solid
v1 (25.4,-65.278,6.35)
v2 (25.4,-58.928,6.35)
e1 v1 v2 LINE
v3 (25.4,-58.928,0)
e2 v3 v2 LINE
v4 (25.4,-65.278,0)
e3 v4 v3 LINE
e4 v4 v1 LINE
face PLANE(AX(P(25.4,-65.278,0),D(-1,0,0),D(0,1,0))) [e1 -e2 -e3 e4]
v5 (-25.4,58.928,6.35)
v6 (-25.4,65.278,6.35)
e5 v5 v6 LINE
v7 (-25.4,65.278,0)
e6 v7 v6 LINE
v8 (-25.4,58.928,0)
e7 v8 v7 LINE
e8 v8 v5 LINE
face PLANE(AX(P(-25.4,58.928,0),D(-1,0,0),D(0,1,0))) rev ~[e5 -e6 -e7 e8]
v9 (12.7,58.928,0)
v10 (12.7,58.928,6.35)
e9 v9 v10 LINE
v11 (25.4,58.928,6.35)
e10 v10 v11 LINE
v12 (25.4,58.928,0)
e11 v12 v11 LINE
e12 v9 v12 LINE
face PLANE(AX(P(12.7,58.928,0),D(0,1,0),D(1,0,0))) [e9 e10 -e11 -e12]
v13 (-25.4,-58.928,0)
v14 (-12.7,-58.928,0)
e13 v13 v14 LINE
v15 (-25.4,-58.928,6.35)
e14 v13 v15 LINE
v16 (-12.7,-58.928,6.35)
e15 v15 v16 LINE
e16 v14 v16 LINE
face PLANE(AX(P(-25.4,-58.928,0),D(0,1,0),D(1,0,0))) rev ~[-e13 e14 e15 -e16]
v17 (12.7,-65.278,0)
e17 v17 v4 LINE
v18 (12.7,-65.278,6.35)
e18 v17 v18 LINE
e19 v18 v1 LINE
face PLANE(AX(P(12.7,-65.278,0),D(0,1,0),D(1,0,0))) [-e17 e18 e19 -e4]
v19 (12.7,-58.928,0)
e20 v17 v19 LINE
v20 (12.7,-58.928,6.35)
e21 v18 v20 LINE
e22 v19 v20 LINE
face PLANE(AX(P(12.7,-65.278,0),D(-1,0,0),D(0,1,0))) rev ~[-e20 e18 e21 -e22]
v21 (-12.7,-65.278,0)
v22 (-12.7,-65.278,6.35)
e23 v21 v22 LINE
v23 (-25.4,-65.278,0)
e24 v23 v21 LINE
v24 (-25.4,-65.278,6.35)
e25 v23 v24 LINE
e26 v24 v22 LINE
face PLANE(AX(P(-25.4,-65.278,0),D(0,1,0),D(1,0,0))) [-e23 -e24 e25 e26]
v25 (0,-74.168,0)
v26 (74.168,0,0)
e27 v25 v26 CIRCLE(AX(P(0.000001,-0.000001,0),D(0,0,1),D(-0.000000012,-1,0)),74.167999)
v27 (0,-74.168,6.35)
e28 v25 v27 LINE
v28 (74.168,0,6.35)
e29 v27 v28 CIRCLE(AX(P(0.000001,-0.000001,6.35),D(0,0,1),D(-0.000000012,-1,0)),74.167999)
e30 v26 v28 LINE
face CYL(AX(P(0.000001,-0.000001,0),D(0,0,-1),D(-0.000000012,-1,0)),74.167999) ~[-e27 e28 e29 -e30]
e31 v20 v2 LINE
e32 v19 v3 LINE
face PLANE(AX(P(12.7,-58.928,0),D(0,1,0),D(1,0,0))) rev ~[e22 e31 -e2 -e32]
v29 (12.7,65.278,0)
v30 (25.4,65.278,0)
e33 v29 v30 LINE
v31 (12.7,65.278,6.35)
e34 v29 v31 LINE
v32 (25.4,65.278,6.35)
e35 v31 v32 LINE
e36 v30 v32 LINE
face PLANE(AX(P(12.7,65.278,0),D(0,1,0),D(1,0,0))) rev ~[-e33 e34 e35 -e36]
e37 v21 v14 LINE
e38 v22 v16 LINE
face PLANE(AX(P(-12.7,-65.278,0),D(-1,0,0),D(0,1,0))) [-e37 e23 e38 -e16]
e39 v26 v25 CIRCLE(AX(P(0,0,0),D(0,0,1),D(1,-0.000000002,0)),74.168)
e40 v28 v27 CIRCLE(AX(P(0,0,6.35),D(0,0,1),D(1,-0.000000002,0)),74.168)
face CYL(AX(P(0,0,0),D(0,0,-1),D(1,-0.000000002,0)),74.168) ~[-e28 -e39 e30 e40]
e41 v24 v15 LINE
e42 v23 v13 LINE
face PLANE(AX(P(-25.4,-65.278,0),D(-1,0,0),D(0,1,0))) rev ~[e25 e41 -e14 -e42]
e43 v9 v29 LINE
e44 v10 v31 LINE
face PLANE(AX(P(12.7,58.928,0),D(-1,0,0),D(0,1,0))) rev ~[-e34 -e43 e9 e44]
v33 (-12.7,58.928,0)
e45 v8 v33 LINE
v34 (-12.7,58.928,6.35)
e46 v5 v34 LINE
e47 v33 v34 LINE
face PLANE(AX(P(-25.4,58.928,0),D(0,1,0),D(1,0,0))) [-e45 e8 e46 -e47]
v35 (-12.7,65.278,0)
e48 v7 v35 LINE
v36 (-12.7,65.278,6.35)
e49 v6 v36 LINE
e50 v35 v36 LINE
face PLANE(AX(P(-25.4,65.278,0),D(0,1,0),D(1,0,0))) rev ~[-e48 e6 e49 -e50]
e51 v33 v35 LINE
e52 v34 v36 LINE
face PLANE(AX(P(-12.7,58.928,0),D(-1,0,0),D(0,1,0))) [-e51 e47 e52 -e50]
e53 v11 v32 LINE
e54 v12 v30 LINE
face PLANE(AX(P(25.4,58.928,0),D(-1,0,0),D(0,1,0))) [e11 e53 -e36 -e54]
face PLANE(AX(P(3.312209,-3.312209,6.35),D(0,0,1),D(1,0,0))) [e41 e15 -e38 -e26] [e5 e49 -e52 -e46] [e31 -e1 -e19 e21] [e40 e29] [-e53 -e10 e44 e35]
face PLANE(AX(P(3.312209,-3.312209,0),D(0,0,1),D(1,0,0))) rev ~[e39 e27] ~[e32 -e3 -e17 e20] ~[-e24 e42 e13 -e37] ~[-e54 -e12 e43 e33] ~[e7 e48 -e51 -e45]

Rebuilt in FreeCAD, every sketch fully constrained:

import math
import FreeCAD as App
import Part
import Sketcher

V = App.Vector
Q = App.Units.Quantity

doc = App.newDocument("Part")
params = doc.addObject("Spreadsheet::Sheet", "Params")
for row, (alias, value) in enumerate([
    ("sketch1_radius", "2.92 in"),
    ("sketch1_width", "0.5 in"),
    ("sketch1_height", "0.25 in"),
    ("pad1_length", "0.25 in"),
], start=1):
    params.set(f"A{row}", alias)
    params.set(f"B{row}", "=" + value)
    params.setAlias(f"B{row}", alias)

body = doc.addObject("PartDesign::Body", "Body")

# Sketch on XY plane
sketch1 = body.newObject("Sketcher::SketchObject", "Sketch")
sketch1.AttachmentSupport = (doc.getObject("XY_Plane"), [""])
sketch1.MapMode = "FlatFace"
sketch1.addGeometry(Part.ArcOfCircle(Part.Circle(V(0, 0, 0), V(0, 0, 1), 74), math.radians(-90), math.radians(0)), False)
sketch1.addGeometry(Part.ArcOfCircle(Part.Circle(V(0, 0, 0), V(0, 0, 1), 74), math.radians(0), math.radians(270)), False)
sketch1.addGeometry(Part.LineSegment(V(-13, -65, 0), V(-25, -65, 0)), False)
sketch1.addGeometry(Part.LineSegment(V(-25, -65, 0), V(-25, -59, 0)), False)
sketch1.addGeometry(Part.LineSegment(V(-25, -59, 0), V(-13, -59, 0)), False)
sketch1.addGeometry(Part.LineSegment(V(-13, -59, 0), V(-13, -65, 0)), False)
sketch1.addGeometry(Part.LineSegment(V(25, -65, 0), V(13, -65, 0)), False)
sketch1.addGeometry(Part.LineSegment(V(13, -65, 0), V(13, -59, 0)), False)
sketch1.addGeometry(Part.LineSegment(V(13, -59, 0), V(25, -59, 0)), False)
sketch1.addGeometry(Part.LineSegment(V(25, -59, 0), V(25, -65, 0)), False)
sketch1.addGeometry(Part.LineSegment(V(-13, 59, 0), V(-25, 59, 0)), False)
sketch1.addGeometry(Part.LineSegment(V(-25, 59, 0), V(-25, 65, 0)), False)
sketch1.addGeometry(Part.LineSegment(V(-25, 65, 0), V(-13, 65, 0)), False)
sketch1.addGeometry(Part.LineSegment(V(-13, 65, 0), V(-13, 59, 0)), False)
sketch1.addGeometry(Part.LineSegment(V(25, 59, 0), V(13, 59, 0)), False)
sketch1.addGeometry(Part.LineSegment(V(13, 59, 0), V(13, 65, 0)), False)
sketch1.addGeometry(Part.LineSegment(V(13, 65, 0), V(25, 65, 0)), False)
sketch1.addGeometry(Part.LineSegment(V(25, 65, 0), V(25, 59, 0)), False)
sketch1.addConstraint(Sketcher.Constraint("Tangent", 0, 1, 1, 2))
sketch1.addConstraint(Sketcher.Constraint("Coincident", 1, 1, 0, 2))
sketch1.addConstraint(Sketcher.Constraint("Coincident", 2, 2, 3, 1))
sketch1.addConstraint(Sketcher.Constraint("Coincident", 3, 2, 4, 1))
sketch1.addConstraint(Sketcher.Constraint("Coincident", 4, 2, 5, 1))
sketch1.addConstraint(Sketcher.Constraint("Coincident", 5, 2, 2, 1))
sketch1.addConstraint(Sketcher.Constraint("Coincident", 6, 2, 7, 1))
sketch1.addConstraint(Sketcher.Constraint("Coincident", 7, 2, 8, 1))
sketch1.addConstraint(Sketcher.Constraint("Coincident", 8, 2, 9, 1))
sketch1.addConstraint(Sketcher.Constraint("Coincident", 9, 2, 6, 1))
sketch1.addConstraint(Sketcher.Constraint("Coincident", 10, 2, 11, 1))
sketch1.addConstraint(Sketcher.Constraint("Coincident", 11, 2, 12, 1))
sketch1.addConstraint(Sketcher.Constraint("Coincident", 12, 2, 13, 1))
sketch1.addConstraint(Sketcher.Constraint("Coincident", 13, 2, 10, 1))
sketch1.addConstraint(Sketcher.Constraint("Coincident", 14, 2, 15, 1))
sketch1.addConstraint(Sketcher.Constraint("Coincident", 15, 2, 16, 1))
sketch1.addConstraint(Sketcher.Constraint("Coincident", 16, 2, 17, 1))
sketch1.addConstraint(Sketcher.Constraint("Coincident", 17, 2, 14, 1))
sketch1.addConstraint(Sketcher.Constraint("Horizontal", 2))
sketch1.addConstraint(Sketcher.Constraint("Vertical", 3))
sketch1.addConstraint(Sketcher.Constraint("Horizontal", 4))
sketch1.addConstraint(Sketcher.Constraint("Vertical", 5))
sketch1.addConstraint(Sketcher.Constraint("Horizontal", 6))
sketch1.addConstraint(Sketcher.Constraint("Vertical", 7))
sketch1.addConstraint(Sketcher.Constraint("Horizontal", 8))
sketch1.addConstraint(Sketcher.Constraint("Vertical", 9))
sketch1.addConstraint(Sketcher.Constraint("Horizontal", 10))
sketch1.addConstraint(Sketcher.Constraint("Vertical", 11))
sketch1.addConstraint(Sketcher.Constraint("Horizontal", 12))
sketch1.addConstraint(Sketcher.Constraint("Vertical", 13))
sketch1.addConstraint(Sketcher.Constraint("Horizontal", 14))
sketch1.addConstraint(Sketcher.Constraint("Vertical", 15))
sketch1.addConstraint(Sketcher.Constraint("Horizontal", 16))
sketch1.addConstraint(Sketcher.Constraint("Vertical", 17))
sketch1.addConstraint(Sketcher.Constraint("Coincident", 0, 3, -1, 1))
sketch1.addConstraint(Sketcher.Constraint("Symmetric", 8, 2, 10, 2, -1, 1))
sketch1.addConstraint(Sketcher.Constraint("Symmetric", 6, 2, 12, 2, -1, 1))
sketch1.addConstraint(Sketcher.Constraint("Symmetric", 4, 2, 14, 2, -1, 1))
sketch1.addConstraint(Sketcher.Constraint("Symmetric", 2, 2, 16, 2, -1, 1))
sketch1.addConstraint(Sketcher.Constraint("Symmetric", 5, 2, 6, 2, -2))
sketch1.addConstraint(Sketcher.Constraint("Symmetric", 3, 2, 8, 2, -2))
sketch1.addConstraint(Sketcher.Constraint("PointOnObject", 0, 1, -2))
sketch1.addConstraint(Sketcher.Constraint("PointOnObject", 1, 1, -1))
sketch1.addConstraint(Sketcher.Constraint("Radius", 0, Q("2.92 in")))
sketch1.addConstraint(Sketcher.Constraint("DistanceX", 2, 2, 2, 1, Q("0.5 in")))
sketch1.addConstraint(Sketcher.Constraint("DistanceX", 2, 2, -1, 1, Q("1 in")))
sketch1.addConstraint(Sketcher.Constraint("DistanceY", 3, 1, 3, 2, Q("0.25 in")))
sketch1.addConstraint(Sketcher.Constraint("DistanceY", 0, 1, 3, 2, Q("0.6 in")))
sketch1.setExpression("Constraints[43]", "Params.sketch1_radius")
sketch1.setExpression("Constraints[44]", "Params.sketch1_width")
sketch1.setExpression("Constraints[46]", "Params.sketch1_height")
pad1 = body.newObject("PartDesign::Pad", "Pad")
pad1.Profile = sketch1
pad1.setExpression("Length", "Params.pad1_length")

doc.recompute()
